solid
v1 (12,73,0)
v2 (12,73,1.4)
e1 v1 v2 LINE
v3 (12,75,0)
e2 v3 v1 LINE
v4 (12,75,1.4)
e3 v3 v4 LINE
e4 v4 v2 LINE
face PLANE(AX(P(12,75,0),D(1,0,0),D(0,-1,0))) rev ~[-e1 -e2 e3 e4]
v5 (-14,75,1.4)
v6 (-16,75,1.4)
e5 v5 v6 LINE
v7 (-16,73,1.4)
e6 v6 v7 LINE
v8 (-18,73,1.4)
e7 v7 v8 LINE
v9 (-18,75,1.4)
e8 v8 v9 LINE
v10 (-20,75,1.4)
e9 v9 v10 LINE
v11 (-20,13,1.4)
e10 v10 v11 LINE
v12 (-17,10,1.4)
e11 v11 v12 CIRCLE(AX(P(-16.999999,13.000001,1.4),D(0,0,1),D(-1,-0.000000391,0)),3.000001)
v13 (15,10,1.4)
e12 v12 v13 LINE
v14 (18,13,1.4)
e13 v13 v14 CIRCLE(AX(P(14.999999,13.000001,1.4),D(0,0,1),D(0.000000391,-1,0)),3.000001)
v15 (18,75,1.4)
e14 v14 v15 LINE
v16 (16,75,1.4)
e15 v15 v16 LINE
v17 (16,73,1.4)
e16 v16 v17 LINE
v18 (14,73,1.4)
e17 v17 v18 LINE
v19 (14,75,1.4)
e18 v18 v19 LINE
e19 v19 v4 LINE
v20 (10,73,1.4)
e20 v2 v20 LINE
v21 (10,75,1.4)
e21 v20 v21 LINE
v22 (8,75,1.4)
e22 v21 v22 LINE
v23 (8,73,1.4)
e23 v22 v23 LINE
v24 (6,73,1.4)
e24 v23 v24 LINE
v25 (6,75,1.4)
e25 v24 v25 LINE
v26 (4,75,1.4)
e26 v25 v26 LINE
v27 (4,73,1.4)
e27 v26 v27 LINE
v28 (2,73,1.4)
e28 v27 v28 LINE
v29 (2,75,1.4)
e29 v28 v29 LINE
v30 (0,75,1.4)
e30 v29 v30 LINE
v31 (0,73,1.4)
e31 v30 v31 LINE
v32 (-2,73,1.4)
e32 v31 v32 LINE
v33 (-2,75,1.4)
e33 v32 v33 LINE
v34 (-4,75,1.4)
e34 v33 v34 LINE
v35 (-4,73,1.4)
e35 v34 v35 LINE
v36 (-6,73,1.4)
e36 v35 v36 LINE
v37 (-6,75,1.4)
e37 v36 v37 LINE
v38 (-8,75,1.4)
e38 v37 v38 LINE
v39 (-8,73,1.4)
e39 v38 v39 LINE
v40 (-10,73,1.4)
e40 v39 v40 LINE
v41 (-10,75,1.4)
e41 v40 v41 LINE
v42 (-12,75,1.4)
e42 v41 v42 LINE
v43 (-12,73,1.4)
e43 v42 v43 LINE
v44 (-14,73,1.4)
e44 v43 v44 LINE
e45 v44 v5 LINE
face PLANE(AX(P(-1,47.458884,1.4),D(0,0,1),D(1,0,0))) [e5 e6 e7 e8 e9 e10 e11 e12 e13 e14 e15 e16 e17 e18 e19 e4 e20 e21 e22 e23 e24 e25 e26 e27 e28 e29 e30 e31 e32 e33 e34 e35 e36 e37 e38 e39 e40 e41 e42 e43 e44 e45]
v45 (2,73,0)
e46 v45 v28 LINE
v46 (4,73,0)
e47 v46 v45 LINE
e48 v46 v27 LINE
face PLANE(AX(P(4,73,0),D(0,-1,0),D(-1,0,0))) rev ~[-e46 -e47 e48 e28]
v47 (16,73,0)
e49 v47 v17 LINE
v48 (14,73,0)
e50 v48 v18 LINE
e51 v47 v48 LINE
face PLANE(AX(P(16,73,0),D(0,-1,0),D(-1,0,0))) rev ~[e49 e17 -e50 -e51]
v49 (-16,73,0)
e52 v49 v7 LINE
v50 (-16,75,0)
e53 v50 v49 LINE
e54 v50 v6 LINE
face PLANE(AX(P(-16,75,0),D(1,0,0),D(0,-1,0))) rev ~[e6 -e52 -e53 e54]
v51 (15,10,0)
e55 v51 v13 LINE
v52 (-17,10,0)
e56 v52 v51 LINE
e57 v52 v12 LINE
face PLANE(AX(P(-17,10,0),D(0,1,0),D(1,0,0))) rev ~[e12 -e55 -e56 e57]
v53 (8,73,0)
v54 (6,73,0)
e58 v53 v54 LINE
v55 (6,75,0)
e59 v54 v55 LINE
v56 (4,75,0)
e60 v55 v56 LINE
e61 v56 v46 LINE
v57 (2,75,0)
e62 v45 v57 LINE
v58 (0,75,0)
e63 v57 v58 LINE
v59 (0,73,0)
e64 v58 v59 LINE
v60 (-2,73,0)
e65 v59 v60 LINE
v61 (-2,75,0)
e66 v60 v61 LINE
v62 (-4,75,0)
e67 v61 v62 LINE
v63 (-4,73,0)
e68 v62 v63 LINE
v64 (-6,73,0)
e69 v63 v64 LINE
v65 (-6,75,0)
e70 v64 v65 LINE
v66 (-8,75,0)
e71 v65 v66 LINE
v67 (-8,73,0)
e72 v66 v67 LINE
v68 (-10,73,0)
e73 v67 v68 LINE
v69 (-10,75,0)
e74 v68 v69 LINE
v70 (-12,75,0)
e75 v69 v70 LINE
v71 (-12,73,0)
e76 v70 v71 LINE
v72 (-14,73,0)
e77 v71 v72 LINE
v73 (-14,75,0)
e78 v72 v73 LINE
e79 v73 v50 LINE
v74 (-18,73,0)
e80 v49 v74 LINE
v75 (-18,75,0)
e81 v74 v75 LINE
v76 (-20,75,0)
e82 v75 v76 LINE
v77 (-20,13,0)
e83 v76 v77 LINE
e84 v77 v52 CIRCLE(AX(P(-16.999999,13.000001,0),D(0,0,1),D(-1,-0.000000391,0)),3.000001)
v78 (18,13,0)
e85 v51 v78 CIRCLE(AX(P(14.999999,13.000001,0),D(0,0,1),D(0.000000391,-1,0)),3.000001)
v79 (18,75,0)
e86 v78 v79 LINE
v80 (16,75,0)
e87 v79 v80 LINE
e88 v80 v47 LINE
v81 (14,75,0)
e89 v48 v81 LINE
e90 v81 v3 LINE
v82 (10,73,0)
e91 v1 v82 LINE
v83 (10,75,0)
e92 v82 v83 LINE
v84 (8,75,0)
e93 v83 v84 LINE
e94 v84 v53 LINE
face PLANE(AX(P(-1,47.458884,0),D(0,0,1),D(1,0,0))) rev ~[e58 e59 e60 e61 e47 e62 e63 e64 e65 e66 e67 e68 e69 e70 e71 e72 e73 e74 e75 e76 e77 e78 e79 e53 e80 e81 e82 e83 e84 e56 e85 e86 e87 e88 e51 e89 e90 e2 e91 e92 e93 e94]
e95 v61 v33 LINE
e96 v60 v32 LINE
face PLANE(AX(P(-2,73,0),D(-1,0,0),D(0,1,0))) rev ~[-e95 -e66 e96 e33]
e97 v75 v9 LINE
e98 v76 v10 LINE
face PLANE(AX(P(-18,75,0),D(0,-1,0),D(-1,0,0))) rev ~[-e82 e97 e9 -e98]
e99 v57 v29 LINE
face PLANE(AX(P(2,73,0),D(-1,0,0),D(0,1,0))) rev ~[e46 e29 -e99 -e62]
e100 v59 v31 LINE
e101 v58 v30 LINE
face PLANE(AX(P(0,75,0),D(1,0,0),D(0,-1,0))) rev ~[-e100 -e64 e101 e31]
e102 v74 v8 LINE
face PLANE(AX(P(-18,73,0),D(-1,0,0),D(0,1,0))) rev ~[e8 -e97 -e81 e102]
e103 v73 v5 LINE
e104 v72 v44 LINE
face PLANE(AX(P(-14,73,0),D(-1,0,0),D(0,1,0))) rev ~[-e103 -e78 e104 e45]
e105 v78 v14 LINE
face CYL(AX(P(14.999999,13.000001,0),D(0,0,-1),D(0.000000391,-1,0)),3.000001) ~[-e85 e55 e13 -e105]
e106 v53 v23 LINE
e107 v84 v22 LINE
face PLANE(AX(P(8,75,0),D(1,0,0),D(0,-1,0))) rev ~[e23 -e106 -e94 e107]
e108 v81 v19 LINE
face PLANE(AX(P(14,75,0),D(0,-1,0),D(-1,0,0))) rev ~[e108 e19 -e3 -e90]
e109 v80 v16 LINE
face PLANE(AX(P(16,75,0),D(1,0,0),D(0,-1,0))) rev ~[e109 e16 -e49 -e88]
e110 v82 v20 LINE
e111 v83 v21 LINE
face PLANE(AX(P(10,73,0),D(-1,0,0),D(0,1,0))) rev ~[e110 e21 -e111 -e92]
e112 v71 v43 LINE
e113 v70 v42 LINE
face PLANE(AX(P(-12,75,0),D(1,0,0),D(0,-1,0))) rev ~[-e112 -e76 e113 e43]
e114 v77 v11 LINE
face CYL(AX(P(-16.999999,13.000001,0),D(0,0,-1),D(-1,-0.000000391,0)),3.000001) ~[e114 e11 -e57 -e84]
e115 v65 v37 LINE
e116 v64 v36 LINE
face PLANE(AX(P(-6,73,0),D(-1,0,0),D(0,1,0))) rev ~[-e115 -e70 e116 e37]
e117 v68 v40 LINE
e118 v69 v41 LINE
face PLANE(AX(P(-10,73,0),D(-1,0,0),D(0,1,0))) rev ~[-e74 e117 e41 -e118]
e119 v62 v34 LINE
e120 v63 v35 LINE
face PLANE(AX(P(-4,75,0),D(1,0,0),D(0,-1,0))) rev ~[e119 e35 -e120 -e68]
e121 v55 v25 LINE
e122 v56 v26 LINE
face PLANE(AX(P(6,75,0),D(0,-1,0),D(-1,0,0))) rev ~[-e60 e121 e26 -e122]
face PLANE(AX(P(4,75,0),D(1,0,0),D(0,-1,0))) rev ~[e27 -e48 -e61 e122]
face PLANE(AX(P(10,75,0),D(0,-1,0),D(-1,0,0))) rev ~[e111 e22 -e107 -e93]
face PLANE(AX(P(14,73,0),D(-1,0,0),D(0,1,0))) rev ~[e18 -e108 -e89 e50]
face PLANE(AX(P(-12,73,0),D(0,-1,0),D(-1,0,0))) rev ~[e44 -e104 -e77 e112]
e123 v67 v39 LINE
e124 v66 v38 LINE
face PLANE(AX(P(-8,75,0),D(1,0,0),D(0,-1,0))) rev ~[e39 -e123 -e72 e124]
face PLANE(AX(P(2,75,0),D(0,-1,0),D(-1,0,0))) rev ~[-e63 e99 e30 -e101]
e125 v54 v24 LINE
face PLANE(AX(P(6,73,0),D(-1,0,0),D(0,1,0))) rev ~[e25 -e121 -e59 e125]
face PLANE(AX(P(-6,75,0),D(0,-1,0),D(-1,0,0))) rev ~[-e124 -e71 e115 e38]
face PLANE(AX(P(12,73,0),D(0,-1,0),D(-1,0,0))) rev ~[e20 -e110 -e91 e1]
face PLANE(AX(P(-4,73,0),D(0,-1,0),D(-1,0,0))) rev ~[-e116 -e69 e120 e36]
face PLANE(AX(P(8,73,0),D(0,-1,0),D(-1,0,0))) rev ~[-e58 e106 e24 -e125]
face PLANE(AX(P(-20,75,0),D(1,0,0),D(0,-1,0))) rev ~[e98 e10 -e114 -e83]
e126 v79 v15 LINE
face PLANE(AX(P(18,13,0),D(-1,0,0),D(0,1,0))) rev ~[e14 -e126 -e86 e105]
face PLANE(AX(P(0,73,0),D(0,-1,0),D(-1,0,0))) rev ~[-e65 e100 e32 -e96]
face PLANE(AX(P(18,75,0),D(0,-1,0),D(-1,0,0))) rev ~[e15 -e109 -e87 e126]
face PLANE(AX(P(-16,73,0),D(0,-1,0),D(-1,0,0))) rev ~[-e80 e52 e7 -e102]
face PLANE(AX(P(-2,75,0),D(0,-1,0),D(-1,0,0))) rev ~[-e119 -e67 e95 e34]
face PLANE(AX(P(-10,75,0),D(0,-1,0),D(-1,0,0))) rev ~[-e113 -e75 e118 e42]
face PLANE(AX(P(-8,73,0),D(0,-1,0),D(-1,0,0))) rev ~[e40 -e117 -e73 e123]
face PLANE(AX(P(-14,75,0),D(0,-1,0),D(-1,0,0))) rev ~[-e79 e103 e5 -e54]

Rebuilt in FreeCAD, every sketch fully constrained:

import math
import FreeCAD as App
import Part
import Sketcher
from FreeCAD import Vector

doc = App.newDocument("Part")
body = doc.addObject("PartDesign::Body", "Body")

sketch1 = body.newObject("Sketcher::SketchObject", "Sketch")
sketch1.AttachmentSupport = (doc.getObject("XY_Plane"), [""])
sketch1.MapMode = "FlatFace"
sketch1.addGeometry(Part.LineSegment(Vector(-18, 75, 0), Vector(-20, 75, 0)), False)
sketch1.addGeometry(Part.LineSegment(Vector(-20, 75, 0), Vector(-20, 13, 0)), False)
sketch1.addGeometry(Part.ArcOfCircle(Part.Circle(Vector(-16.999999, 13.000001, 0), Vector(0, 0, 1), 3.000001), math.radians(-179.999978), math.radians(-90.000022)), False)
sketch1.addGeometry(Part.LineSegment(Vector(-17, 10, 0), Vector(15, 10, 0)), False)
sketch1.addGeometry(Part.ArcOfCircle(Part.Circle(Vector(14.999999, 13.000001, 0), Vector(0, 0, 1), 3.000001), math.radians(-89.999978), math.radians(-0.000022)), False)
sketch1.addGeometry(Part.LineSegment(Vector(18, 13, 0), Vector(18, 75, 0)), False)
sketch1.addGeometry(Part.LineSegment(Vector(18, 75, 0), Vector(16, 75, 0)), False)
sketch1.addGeometry(Part.LineSegment(Vector(16, 75, 0), Vector(16, 73, 0)), False)
sketch1.addGeometry(Part.LineSegment(Vector(16, 73, 0), Vector(14, 73, 0)), False)
sketch1.addGeometry(Part.LineSegment(Vector(14, 73, 0), Vector(14, 75, 0)), False)
sketch1.addGeometry(Part.LineSegment(Vector(14, 75, 0), Vector(12, 75, 0)), False)
sketch1.addGeometry(Part.LineSegment(Vector(12, 75, 0), Vector(12, 73, 0)), False)
sketch1.addGeometry(Part.LineSegment(Vector(12, 73, 0), Vector(10, 73, 0)), False)
sketch1.addGeometry(Part.LineSegment(Vector(10, 73, 0), Vector(10, 75, 0)), False)
sketch1.addGeometry(Part.LineSegment(Vector(10, 75, 0), Vector(8, 75, 0)), False)
sketch1.addGeometry(Part.LineSegment(Vector(8, 75, 0), Vector(8, 73, 0)), False)
sketch1.addGeometry(Part.LineSegment(Vector(8, 73, 0), Vector(6, 73, 0)), False)
sketch1.addGeometry(Part.LineSegment(Vector(6, 73, 0), Vector(6, 75, 0)), False)
sketch1.addGeometry(Part.LineSegment(Vector(6, 75, 0), Vector(4, 75, 0)), False)
sketch1.addGeometry(Part.LineSegment(Vector(4, 75, 0), Vector(4, 73, 0)), False)
sketch1.addGeometry(Part.LineSegment(Vector(4, 73, 0), Vector(2, 73, 0)), False)
sketch1.addGeometry(Part.LineSegment(Vector(2, 73, 0), Vector(2, 75, 0)), False)
sketch1.addGeometry(Part.LineSegment(Vector(2, 75, 0), Vector(0, 75, 0)), False)
sketch1.addGeometry(Part.LineSegment(Vector(0, 75, 0), Vector(0, 73, 0)), False)
sketch1.addGeometry(Part.LineSegment(Vector(0, 73, 0), Vector(-2, 73, 0)), False)
sketch1.addGeometry(Part.LineSegment(Vector(-2, 73, 0), Vector(-2, 75, 0)), False)
sketch1.addGeometry(Part.LineSegment(Vector(-2, 75, 0), Vector(-4, 75, 0)), False)
sketch1.addGeometry(Part.LineSegment(Vector(-4, 75, 0), Vector(-4, 73, 0)), False)
sketch1.addGeometry(Part.LineSegment(Vector(-4, 73, 0), Vector(-6, 73, 0)), False)
sketch1.addGeometry(Part.LineSegment(Vector(-6, 73, 0), Vector(-6, 75, 0)), False)
sketch1.addGeometry(Part.LineSegment(Vector(-6, 75, 0), Vector(-8, 75, 0)), False)
sketch1.addGeometry(Part.LineSegment(Vector(-8, 75, 0), Vector(-8, 73, 0)), False)
sketch1.addGeometry(Part.LineSegment(Vector(-8, 73, 0), Vector(-10, 73, 0)), False)
sketch1.addGeometry(Part.LineSegment(Vector(-10, 73, 0), Vector(-10, 75, 0)), False)
sketch1.addGeometry(Part.LineSegment(Vector(-10, 75, 0), Vector(-12, 75, 0)), False)
sketch1.addGeometry(Part.LineSegment(Vector(-12, 75, 0), Vector(-12, 73, 0)), False)
sketch1.addGeometry(Part.LineSegment(Vector(-12, 73, 0), Vector(-14, 73, 0)), False)
sketch1.addGeometry(Part.LineSegment(Vector(-14, 73, 0), Vector(-14, 75, 0)), False)
sketch1.addGeometry(Part.LineSegment(Vector(-14, 75, 0), Vector(-16, 75, 0)), False)
sketch1.addGeometry(Part.LineSegment(Vector(-16, 75, 0), Vector(-16, 73, 0)), False)
sketch1.addGeometry(Part.LineSegment(Vector(-16, 73, 0), Vector(-18, 73, 0)), False)
sketch1.addGeometry(Part.LineSegment(Vector(-18, 73, 0), Vector(-18, 75, 0)), False)
sketch1.addConstraint(Sketcher.Constraint("Coincident", 0, 2, 1, 1))
sketch1.addConstraint(Sketcher.Constraint("Tangent", 1, 2, 2, 1))
sketch1.addConstraint(Sketcher.Constraint("Tangent", 2, 2, 3, 1))
sketch1.addConstraint(Sketcher.Constraint("Tangent", 3, 2, 4, 1))
sketch1.addConstraint(Sketcher.Constraint("Tangent", 4, 2, 5, 1))
sketch1.addConstraint(Sketcher.Constraint("Coincident", 5, 2, 6, 1))
sketch1.addConstraint(Sketcher.Constraint("Coincident", 6, 2, 7, 1))
sketch1.addConstraint(Sketcher.Constraint("Coincident", 7, 2, 8, 1))
sketch1.addConstraint(Sketcher.Constraint("Coincident", 8, 2, 9, 1))
sketch1.addConstraint(Sketcher.Constraint("Coincident", 9, 2, 10, 1))
sketch1.addConstraint(Sketcher.Constraint("Coincident", 10, 2, 11, 1))
sketch1.addConstraint(Sketcher.Constraint("Coincident", 11, 2, 12, 1))
sketch1.addConstraint(Sketcher.Constraint("Coincident", 12, 2, 13, 1))
sketch1.addConstraint(Sketcher.Constraint("Coincident", 13, 2, 14, 1))
sketch1.addConstraint(Sketcher.Constraint("Coincident", 14, 2, 15, 1))
sketch1.addConstraint(Sketcher.Constraint("Coincident", 15, 2, 16, 1))
sketch1.addConstraint(Sketcher.Constraint("Coincident", 16, 2, 17, 1))
sketch1.addConstraint(Sketcher.Constraint("Coincident", 17, 2, 18, 1))
sketch1.addConstraint(Sketcher.Constraint("Coincident", 18, 2, 19, 1))
sketch1.addConstraint(Sketcher.Constraint("Coincident", 19, 2, 20, 1))
sketch1.addConstraint(Sketcher.Constraint("Coincident", 20, 2, 21, 1))
sketch1.addConstraint(Sketcher.Constraint("Coincident", 21, 2, 22, 1))
sketch1.addConstraint(Sketcher.Constraint("Coincident", 22, 2, 23, 1))
sketch1.addConstraint(Sketcher.Constraint("Coincident", 23, 2, 24, 1))
sketch1.addConstraint(Sketcher.Constraint("Coincident", 24, 2, 25, 1))
sketch1.addConstraint(Sketcher.Constraint("Coincident", 25, 2, 26, 1))
sketch1.addConstraint(Sketcher.Constraint("Coincident", 26, 2, 27, 1))
sketch1.addConstraint(Sketcher.Constraint("Coincident", 27, 2, 28, 1))
sketch1.addConstraint(Sketcher.Constraint("Coincident", 28, 2, 29, 1))
sketch1.addConstraint(Sketcher.Constraint("Coincident", 29, 2, 30, 1))
sketch1.addConstraint(Sketcher.Constraint("Coincident", 30, 2, 31, 1))
sketch1.addConstraint(Sketcher.Constraint("Coincident", 31, 2, 32, 1))
sketch1.addConstraint(Sketcher.Constraint("Coincident", 32, 2, 33, 1))
sketch1.addConstraint(Sketcher.Constraint("Coincident", 33, 2, 34, 1))
sketch1.addConstraint(Sketcher.Constraint("Coincident", 34, 2, 35, 1))
sketch1.addConstraint(Sketcher.Constraint("Coincident", 35, 2, 36, 1))
sketch1.addConstraint(Sketcher.Constraint("Coincident", 36, 2, 37, 1))
sketch1.addConstraint(Sketcher.Constraint("Coincident", 37, 2, 38, 1))
sketch1.addConstraint(Sketcher.Constraint("Coincident", 38, 2, 39, 1))
sketch1.addConstraint(Sketcher.Constraint("Coincident", 39, 2, 40, 1))
sketch1.addConstraint(Sketcher.Constraint("Coincident", 40, 2, 41, 1))
sketch1.addConstraint(Sketcher.Constraint("Coincident", 41, 2, 0, 1))
sketch1.addConstraint(Sketcher.Constraint("Horizontal", 0))
sketch1.addConstraint(Sketcher.Constraint("Vertical", 1))
sketch1.addConstraint(Sketcher.Constraint("Horizontal", 3))
sketch1.addConstraint(Sketcher.Constraint("Vertical", 5))
sketch1.addConstraint(Sketcher.Constraint("Horizontal", 6))
sketch1.addConstraint(Sketcher.Constraint("Vertical", 7))
sketch1.addConstraint(Sketcher.Constraint("Horizontal", 8))
sketch1.addConstraint(Sketcher.Constraint("Vertical", 9))
sketch1.addConstraint(Sketcher.Constraint("Horizontal", 10))
sketch1.addConstraint(Sketcher.Constraint("Vertical", 11))
sketch1.addConstraint(Sketcher.Constraint("Horizontal", 12))
sketch1.addConstraint(Sketcher.Constraint("Vertical", 13))
sketch1.addConstraint(Sketcher.Constraint("Horizontal", 14))
sketch1.addConstraint(Sketcher.Constraint("Vertical", 15))
sketch1.addConstraint(Sketcher.Constraint("Horizontal", 16))
sketch1.addConstraint(Sketcher.Constraint("Vertical", 17))
sketch1.addConstraint(Sketcher.Constraint("Horizontal", 18))
sketch1.addConstraint(Sketcher.Constraint("Vertical", 19))
sketch1.addConstraint(Sketcher.Constraint("Horizontal", 20))
sketch1.addConstraint(Sketcher.Constraint("Vertical", 21))
sketch1.addConstraint(Sketcher.Constraint("Horizontal", 22))
sketch1.addConstraint(Sketcher.Constraint("Vertical", 23))
sketch1.addConstraint(Sketcher.Constraint("Horizontal", 24))
sketch1.addConstraint(Sketcher.Constraint("Vertical", 25))
sketch1.addConstraint(Sketcher.Constraint("Horizontal", 26))
sketch1.addConstraint(Sketcher.Constraint("Vertical", 27))
sketch1.addConstraint(Sketcher.Constraint("Horizontal", 28))
sketch1.addConstraint(Sketcher.Constraint("Vertical", 29))
sketch1.addConstraint(Sketcher.Constraint("Horizontal", 30))
sketch1.addConstraint(Sketcher.Constraint("Vertical", 31))
sketch1.addConstraint(Sketcher.Constraint("Horizontal", 32))
sketch1.addConstraint(Sketcher.Constraint("Vertical", 33))
sketch1.addConstraint(Sketcher.Constraint("Horizontal", 34))
sketch1.addConstraint(Sketcher.Constraint("Vertical", 35))
sketch1.addConstraint(Sketcher.Constraint("Horizontal", 36))
sketch1.addConstraint(Sketcher.Constraint("Vertical", 37))
sketch1.addConstraint(Sketcher.Constraint("Horizontal", 38))
sketch1.addConstraint(Sketcher.Constraint("Vertical", 39))
sketch1.addConstraint(Sketcher.Constraint("Horizontal", 40))
sketch1.addConstraint(Sketcher.Constraint("Vertical", 41))
sketch1.addConstraint(Sketcher.Constraint("Equal", 2, 4))
sketch1.addConstraint(Sketcher.Constraint("Symmetric", 20, 2, 24, 2, -2))
sketch1.addConstraint(Sketcher.Constraint("Symmetric", 18, 2, 26, 2, -2))
sketch1.addConstraint(Sketcher.Constraint("Symmetric", 16, 2, 28, 2, -2))
sketch1.addConstraint(Sketcher.Constraint("Symmetric", 14, 2, 30, 2, -2))
sketch1.addConstraint(Sketcher.Constraint("Symmetric", 12, 2, 32, 2, -2))
sketch1.addConstraint(Sketcher.Constraint("Symmetric", 10, 2, 34, 2, -2))
sketch1.addConstraint(Sketcher.Constraint("Symmetric", 8, 2, 36, 2, -2))
sketch1.addConstraint(Sketcher.Constraint("Symmetric", 6, 2, 38, 2, -2))
sketch1.addConstraint(Sketcher.Constraint("Symmetric", 5, 2, 41, 2, -2))
sketch1.addConstraint(Sketcher.Constraint("PointOnObject", 22, 2, -2))
sketch1.addConstraint(Sketcher.Constraint("Horizontal", 6, 2, 9, 2))
sketch1.addConstraint(Sketcher.Constraint("Horizontal", 8, 2, 11, 2))
sketch1.addConstraint(Sketcher.Constraint("Horizontal", 10, 2, 13, 2))
sketch1.addConstraint(Sketcher.Constraint("Horizontal", 12, 2, 15, 2))
sketch1.addConstraint(Sketcher.Constraint("Horizontal", 14, 2, 17, 2))
sketch1.addConstraint(Sketcher.Constraint("Horizontal", 16, 2, 19, 2))
sketch1.addConstraint(Sketcher.Constraint("Horizontal", 18, 2, 21, 2))
sketch1.addConstraint(Sketcher.Constraint("Horizontal", 36, 2, 39, 2))
sketch1.addConstraint(Sketcher.Constraint("Equal", 0, 6))
sketch1.addConstraint(Sketcher.Constraint("Equal", 6, 8))
sketch1.addConstraint(Sketcher.Constraint("Equal", 8, 10))
sketch1.addConstraint(Sketcher.Constraint("Equal", 10, 12))
sketch1.addConstraint(Sketcher.Constraint("Equal", 12, 14))
sketch1.addConstraint(Sketcher.Constraint("Equal", 14, 16))
sketch1.addConstraint(Sketcher.Constraint("Equal", 16, 18))
sketch1.addConstraint(Sketcher.Constraint("Equal", 18, 20))
sketch1.addConstraint(Sketcher.Constraint("Equal", 20, 22))
sketch1.addConstraint(Sketcher.Constraint("Equal", 40, 7))
sketch1.addConstraint(Sketcher.Constraint("Radius", 2, 3.000001))
sketch1.addConstraint(Sketcher.Constraint("DistanceX", 0, 2, 0, 1, 2.0))
sketch1.addConstraint(Sketcher.Constraint("DistanceY", 1, 2, 1, 1, 62.0))
sketch1.addConstraint(Sketcher.Constraint("DistanceY", -1, 1, 2, 3, 13.000001))
pad1 = body.newObject("PartDesign::Pad", "Pad")
pad1.Profile = sketch1
pad1.Length = 1.4

doc.recompute()
